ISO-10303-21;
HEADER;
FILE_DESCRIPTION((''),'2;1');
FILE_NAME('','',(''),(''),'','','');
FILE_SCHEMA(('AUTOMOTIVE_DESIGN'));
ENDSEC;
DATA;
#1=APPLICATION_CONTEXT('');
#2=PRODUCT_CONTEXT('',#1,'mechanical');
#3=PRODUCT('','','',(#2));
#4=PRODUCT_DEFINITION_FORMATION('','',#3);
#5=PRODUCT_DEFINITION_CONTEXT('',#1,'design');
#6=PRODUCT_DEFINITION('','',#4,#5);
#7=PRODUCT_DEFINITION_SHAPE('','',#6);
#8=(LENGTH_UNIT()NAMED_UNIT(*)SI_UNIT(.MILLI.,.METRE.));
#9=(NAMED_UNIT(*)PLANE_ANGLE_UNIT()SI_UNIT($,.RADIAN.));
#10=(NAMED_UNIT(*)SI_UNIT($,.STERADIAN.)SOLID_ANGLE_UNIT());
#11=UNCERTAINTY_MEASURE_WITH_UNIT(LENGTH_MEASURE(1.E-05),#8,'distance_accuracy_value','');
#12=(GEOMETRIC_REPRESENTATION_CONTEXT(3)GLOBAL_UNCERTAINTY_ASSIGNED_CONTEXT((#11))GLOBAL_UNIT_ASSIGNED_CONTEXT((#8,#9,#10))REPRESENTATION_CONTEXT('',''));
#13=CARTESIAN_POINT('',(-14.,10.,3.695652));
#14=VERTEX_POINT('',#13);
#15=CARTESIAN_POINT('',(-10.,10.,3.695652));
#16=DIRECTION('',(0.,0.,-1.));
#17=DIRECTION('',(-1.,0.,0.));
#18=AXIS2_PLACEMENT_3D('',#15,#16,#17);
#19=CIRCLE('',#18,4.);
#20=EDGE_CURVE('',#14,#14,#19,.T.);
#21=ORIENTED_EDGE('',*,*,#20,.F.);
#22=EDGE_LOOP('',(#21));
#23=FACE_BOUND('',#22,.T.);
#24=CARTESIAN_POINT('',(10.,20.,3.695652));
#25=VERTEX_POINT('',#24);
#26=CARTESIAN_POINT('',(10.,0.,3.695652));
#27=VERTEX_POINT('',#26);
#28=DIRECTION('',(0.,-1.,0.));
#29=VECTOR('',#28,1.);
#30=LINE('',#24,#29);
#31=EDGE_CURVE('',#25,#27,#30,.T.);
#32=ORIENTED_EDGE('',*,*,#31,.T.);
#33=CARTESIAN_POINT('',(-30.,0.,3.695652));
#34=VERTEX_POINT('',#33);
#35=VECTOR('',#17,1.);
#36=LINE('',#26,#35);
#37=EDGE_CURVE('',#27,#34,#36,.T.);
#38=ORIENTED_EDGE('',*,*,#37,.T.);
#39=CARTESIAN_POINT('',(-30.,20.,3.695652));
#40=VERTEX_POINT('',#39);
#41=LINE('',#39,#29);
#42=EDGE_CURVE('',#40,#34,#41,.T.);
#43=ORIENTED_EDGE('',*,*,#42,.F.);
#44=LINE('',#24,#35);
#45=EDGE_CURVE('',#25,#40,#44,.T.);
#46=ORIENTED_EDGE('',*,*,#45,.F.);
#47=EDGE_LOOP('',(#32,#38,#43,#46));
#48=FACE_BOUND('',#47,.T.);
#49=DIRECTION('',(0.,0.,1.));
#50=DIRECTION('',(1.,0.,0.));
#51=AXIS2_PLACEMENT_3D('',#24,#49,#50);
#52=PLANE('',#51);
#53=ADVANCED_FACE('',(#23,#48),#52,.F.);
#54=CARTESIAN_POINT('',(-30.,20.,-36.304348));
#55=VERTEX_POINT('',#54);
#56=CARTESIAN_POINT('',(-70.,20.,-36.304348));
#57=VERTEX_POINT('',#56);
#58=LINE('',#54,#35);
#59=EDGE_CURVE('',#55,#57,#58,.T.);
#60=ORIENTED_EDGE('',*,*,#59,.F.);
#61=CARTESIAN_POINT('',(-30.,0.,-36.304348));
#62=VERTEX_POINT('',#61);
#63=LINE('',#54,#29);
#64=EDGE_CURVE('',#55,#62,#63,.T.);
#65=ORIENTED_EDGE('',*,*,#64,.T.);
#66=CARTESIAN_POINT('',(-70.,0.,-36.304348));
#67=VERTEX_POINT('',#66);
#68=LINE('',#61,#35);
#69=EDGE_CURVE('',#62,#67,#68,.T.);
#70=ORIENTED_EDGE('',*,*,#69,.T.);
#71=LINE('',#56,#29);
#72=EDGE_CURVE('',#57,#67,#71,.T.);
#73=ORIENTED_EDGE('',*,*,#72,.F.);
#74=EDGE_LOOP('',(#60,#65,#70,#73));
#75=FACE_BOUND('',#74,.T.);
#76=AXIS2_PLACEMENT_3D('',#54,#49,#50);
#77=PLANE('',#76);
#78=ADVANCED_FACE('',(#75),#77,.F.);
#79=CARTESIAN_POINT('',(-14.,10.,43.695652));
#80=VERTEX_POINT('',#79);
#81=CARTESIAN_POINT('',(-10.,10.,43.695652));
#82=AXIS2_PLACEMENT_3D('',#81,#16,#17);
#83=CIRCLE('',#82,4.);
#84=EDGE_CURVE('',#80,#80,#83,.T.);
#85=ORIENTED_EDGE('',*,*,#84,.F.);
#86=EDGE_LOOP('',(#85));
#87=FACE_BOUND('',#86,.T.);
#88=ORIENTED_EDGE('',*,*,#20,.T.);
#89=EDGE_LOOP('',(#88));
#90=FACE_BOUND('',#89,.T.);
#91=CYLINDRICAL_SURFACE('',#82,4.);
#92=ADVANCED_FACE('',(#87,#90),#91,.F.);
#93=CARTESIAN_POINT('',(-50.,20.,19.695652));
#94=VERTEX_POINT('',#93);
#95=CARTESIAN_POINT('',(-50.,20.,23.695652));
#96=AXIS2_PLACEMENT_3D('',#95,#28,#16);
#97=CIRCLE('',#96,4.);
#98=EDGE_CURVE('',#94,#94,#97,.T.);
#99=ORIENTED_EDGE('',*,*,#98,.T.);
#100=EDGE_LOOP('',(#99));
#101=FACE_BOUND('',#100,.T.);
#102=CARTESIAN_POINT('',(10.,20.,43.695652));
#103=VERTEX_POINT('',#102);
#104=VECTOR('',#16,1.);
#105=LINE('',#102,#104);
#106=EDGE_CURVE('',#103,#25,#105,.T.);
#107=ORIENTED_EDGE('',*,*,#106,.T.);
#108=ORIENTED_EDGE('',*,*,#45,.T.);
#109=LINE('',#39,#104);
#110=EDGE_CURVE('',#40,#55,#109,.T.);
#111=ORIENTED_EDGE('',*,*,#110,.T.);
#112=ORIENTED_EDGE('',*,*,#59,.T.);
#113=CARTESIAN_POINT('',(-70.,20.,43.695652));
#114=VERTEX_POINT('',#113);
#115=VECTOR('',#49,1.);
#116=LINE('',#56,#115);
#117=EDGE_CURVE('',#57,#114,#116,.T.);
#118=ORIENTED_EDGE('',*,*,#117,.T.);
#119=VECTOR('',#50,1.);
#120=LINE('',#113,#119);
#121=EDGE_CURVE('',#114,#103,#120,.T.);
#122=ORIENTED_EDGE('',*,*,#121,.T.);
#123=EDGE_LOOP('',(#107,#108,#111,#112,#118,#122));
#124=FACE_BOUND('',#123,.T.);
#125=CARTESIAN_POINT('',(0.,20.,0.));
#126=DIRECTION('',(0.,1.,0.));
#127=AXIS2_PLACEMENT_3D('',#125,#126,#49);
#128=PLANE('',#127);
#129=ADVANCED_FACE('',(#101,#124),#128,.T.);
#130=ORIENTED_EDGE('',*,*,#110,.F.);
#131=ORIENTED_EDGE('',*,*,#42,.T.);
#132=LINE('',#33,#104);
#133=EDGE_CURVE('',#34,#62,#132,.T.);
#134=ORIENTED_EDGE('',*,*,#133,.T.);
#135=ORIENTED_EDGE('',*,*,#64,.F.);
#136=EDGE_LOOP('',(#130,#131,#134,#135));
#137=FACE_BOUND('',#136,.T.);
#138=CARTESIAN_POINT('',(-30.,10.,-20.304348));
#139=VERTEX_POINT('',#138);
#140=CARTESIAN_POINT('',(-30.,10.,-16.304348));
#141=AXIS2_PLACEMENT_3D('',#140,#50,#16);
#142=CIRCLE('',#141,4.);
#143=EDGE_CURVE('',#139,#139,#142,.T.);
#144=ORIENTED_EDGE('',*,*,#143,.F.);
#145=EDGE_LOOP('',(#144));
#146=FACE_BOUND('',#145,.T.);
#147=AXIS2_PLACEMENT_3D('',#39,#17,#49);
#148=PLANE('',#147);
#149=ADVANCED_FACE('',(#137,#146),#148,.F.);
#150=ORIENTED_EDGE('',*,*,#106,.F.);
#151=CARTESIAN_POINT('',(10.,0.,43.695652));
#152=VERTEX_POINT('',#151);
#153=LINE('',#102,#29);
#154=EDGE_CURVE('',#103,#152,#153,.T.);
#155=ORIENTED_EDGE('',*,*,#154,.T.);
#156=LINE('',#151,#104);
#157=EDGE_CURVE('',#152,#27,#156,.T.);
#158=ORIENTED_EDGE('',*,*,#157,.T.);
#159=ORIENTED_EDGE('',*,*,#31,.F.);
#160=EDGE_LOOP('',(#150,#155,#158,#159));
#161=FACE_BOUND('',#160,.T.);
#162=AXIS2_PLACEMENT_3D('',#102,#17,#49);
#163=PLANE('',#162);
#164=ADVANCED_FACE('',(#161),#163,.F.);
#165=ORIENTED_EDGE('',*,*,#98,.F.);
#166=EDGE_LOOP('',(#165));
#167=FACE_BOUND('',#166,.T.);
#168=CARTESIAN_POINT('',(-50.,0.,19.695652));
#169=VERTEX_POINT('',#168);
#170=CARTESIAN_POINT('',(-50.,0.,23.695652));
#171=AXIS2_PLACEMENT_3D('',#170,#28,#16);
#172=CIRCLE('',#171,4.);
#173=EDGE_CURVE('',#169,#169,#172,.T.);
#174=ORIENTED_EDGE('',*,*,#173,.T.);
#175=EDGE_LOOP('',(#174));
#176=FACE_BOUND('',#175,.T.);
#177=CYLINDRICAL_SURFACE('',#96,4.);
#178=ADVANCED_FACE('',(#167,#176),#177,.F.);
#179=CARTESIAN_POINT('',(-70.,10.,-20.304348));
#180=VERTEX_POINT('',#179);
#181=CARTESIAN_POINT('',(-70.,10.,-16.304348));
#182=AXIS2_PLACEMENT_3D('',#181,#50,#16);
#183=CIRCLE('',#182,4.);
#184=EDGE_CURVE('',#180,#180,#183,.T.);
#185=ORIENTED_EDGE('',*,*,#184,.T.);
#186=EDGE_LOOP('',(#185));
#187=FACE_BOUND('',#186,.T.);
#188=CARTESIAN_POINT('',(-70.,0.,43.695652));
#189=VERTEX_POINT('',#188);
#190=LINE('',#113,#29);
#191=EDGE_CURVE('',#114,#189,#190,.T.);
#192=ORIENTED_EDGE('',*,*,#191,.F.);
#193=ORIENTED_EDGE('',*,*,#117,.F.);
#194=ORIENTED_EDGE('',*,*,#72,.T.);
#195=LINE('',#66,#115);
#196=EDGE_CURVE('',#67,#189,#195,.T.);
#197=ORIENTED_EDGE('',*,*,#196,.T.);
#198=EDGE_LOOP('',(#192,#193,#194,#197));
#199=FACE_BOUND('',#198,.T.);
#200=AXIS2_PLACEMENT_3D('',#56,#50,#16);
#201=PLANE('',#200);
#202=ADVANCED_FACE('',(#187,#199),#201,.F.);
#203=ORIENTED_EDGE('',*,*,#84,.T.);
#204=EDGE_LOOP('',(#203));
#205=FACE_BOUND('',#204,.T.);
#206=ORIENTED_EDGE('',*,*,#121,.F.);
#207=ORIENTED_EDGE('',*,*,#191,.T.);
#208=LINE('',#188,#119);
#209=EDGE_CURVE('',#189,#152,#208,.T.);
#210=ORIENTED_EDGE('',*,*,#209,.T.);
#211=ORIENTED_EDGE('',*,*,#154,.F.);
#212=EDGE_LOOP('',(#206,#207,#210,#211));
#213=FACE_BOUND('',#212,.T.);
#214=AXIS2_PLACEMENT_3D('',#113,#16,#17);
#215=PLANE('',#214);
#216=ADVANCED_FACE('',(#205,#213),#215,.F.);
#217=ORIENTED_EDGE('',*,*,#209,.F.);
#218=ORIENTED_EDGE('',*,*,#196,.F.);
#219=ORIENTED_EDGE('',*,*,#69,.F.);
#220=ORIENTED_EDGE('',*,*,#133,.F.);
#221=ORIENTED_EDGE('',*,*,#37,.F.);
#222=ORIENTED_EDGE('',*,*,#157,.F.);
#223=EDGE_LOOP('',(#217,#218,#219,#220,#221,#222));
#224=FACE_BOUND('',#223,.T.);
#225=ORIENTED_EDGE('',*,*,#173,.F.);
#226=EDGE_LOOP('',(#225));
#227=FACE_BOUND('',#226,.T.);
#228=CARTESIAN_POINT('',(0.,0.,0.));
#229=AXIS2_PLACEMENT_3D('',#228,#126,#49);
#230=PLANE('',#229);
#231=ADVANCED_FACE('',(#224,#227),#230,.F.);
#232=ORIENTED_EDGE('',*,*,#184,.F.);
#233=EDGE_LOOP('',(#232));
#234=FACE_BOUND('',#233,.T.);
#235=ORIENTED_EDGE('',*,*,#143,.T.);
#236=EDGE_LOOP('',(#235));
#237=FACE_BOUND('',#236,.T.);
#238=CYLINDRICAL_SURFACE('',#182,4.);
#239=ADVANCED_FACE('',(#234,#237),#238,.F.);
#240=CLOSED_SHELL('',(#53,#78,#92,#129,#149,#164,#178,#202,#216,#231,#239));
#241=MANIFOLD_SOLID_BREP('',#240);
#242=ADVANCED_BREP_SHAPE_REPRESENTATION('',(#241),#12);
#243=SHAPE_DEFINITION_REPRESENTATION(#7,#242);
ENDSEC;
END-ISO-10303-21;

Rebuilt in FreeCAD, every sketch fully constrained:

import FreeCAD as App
import Part
import Sketcher

V = App.Vector


def add_polygon(sketch, points):
    """Adds a closed chain of lines whose ends are joined by coincident constraints."""
    first, n = sketch.GeometryCount, len(points)
    for a, b in zip(points, points[1:] + points[:1]):
        sketch.addGeometry(Part.LineSegment(App.Vector(*a, 0), App.Vector(*b, 0)), False)
    for i in range(n):
        sketch.addConstraint(Sketcher.Constraint("Coincident", first + i, 2, first + (i + 1) % n, 1))

doc = App.newDocument("Part")
body = doc.addObject("PartDesign::Body", "Body")

sketch1 = body.newObject("Sketcher::SketchObject", "Sketch")
sketch1.AttachmentSupport = (doc.getObject("XZ_Plane"), [""])
sketch1.MapMode = "FlatFace"
add_polygon(sketch1, [(-70, -36.304348), (-70, 43.695652), (10, 43.695652), (10, 3.695652), (-30, 3.695652), (-30, -36.304348)])
sketch1.addConstraint([
    Sketcher.Constraint("Vertical", 0),
    Sketcher.Constraint("Horizontal", 1),
    Sketcher.Constraint("Vertical", 2),
    Sketcher.Constraint("Horizontal", 3),
    Sketcher.Constraint("Vertical", 4),
    Sketcher.Constraint("Horizontal", 5),
    Sketcher.Constraint("Equal", 3, 5),
    Sketcher.Constraint("Equal", 1, 0),
    Sketcher.Constraint("Equal", 5, 2),
    Sketcher.Constraint("DistanceX", 1, 1, 1, 2, 80.0),
    Sketcher.Constraint("DistanceX", 0, 2, -1, 1, 70.0),
    Sketcher.Constraint("DistanceY", -1, 1, 0, 2, 43.695652),
])
pad1 = body.newObject("PartDesign::Pad", "Pad")
pad1.Profile = sketch1
pad1.Length = 20
pad1.Reversed = True

sketch2 = body.newObject("Sketcher::SketchObject", "Sketch001")
sketch2.AttachmentSupport = (doc.getObject("YZ_Plane"), [""])
sketch2.MapMode = "FlatFace"
sketch2.AttachmentOffset = App.Placement(V(0, 0, -30), App.Rotation())
sketch2.addGeometry(Part.Circle(V(10, -16.304348, 0), V(0, 0, 1), 4), False)
sketch2.addConstraint([
    Sketcher.Constraint("Diameter", 0, 8.0),
    Sketcher.Constraint("DistanceX", -1, 1, 0, 3, 10.0),
    Sketcher.Constraint("DistanceY", 0, 3, -1, 1, 16.304348),
])
pocket1 = body.newObject("PartDesign::Pocket", "Pocket")
pocket1.Profile = sketch2
pocket1.Type = "ThroughAll"

sketch3 = body.newObject("Sketcher::SketchObject", "Sketch002")
sketch3.AttachmentSupport = (doc.getObject("XY_Plane"), [""])
sketch3.MapMode = "FlatFace"
sketch3.AttachmentOffset = App.Placement(V(0, 0, 3.695652), App.Rotation())
sketch3.addGeometry(Part.Circle(V(-10, 10, 0), V(0, 0, 1), 4), False)
sketch3.addConstraint([
    Sketcher.Constraint("Diameter", 0, 8.0),
    Sketcher.Constraint("DistanceX", 0, 3, -1, 1, 10.0),
    Sketcher.Constraint("DistanceY", -1, 1, 0, 3, 10.0),
])
pocket2 = body.newObject("PartDesign::Pocket", "Pocket001")
pocket2.Profile = sketch3
pocket2.Type = "ThroughAll"
pocket2.Reversed = True

sketch4 = body.newObject("Sketcher::SketchObject", "Sketch003")
sketch4.AttachmentSupport = (doc.getObject("XZ_Plane"), [""])
sketch4.MapMode = "FlatFace"
sketch4.addGeometry(Part.Circle(V(-50, 23.695652, 0), V(0, 0, 1), 4), False)
sketch4.addConstraint([
    Sketcher.Constraint("Diameter", 0, 8.0),
    Sketcher.Constraint("DistanceX", 0, 3, -1, 1, 50.0),
    Sketcher.Constraint("DistanceY", -1, 1, 0, 3, 23.695652),
])
pocket3 = body.newObject("PartDesign::Pocket", "Pocket002")
pocket3.Profile = sketch4
pocket3.Type = "ThroughAll"

doc.recompute()
